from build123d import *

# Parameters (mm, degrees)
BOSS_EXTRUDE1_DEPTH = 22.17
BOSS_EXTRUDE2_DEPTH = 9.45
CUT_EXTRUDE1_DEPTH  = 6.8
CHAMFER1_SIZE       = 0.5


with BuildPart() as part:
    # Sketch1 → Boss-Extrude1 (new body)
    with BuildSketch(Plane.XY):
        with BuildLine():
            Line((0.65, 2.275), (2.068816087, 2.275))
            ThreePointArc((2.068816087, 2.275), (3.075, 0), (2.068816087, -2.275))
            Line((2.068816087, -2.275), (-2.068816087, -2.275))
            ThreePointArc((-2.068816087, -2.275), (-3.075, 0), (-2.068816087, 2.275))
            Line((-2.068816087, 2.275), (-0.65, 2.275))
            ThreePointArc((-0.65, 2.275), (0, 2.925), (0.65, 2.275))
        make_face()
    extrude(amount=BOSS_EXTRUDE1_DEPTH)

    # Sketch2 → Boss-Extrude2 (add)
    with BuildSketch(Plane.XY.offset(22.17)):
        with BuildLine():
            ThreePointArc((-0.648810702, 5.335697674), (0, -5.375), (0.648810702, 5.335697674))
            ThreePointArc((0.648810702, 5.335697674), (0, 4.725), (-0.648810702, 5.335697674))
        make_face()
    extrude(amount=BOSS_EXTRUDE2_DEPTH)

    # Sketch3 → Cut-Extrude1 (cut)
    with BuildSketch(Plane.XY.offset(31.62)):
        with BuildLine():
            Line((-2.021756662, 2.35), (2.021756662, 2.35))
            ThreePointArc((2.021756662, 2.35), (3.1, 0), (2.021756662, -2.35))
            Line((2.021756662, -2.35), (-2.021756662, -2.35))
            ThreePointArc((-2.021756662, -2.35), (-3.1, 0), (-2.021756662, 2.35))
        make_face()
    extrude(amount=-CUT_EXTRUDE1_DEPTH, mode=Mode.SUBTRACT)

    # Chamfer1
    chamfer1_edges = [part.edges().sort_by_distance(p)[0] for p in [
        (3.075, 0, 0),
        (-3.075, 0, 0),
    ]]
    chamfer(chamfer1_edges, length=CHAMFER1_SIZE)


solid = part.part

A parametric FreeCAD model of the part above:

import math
import FreeCAD as App
import Part
import Sketcher
from FreeCAD import Vector


def edges_at(feature, points):
    """Names of the edges that pass closest to the given points."""
    edges = feature.Shape.Edges
    near = lambda p: min(range(len(edges)), key=lambda i: edges[i].distToShape(Part.Vertex(*p))[0])
    return sorted({f"Edge{near(p) + 1}" for p in points})

doc = App.newDocument("Part")
params = doc.addObject("Spreadsheet::Sheet", "Params")
for row, (alias, value) in enumerate([
    ("sketch1_radius", "0.65 mm"),
    ("pad1_length", "22.17 mm"),
    ("sketch2_radius", "0.65 mm"),
    ("pad2_length", "9.45 mm"),
    ("sketch3_radius", "3.1 mm"),
    ("pocket1_length", "6.8 mm"),
    ("chamfer_size", "0.5 mm"),
], start=1):
    params.set(f"A{row}", alias)
    params.set(f"B{row}", "=" + value)
    params.setAlias(f"B{row}", alias)

body = doc.addObject("PartDesign::Body", "Body")

sketch1 = body.newObject("Sketcher::SketchObject", "Sketch")
sketch1.AttachmentSupport = (doc.getObject("XY_Plane"), [""])
sketch1.MapMode = "FlatFace"
sketch1.addGeometry([
    Part.LineSegment(Vector(2.1, 2.3, 0), Vector(0.7, 2.3, 0)),
    Part.ArcOfCircle(Part.Circle(Vector(0, 2.3, 0), Vector(0, 0, 1), 0.7), math.radians(0), math.radians(180)),
    Part.LineSegment(Vector(-0.7, 2.3, 0), Vector(-2.1, 2.3, 0)),
    Part.ArcOfCircle(Part.Circle(Vector(0, 0, 0), Vector(0, 0, 1), 3.1), math.radians(132), math.radians(228)),
    Part.LineSegment(Vector(-2.1, -2.3, 0), Vector(2.1, -2.3, 0)),
    Part.ArcOfCircle(Part.Circle(Vector(0, 0, 0), Vector(0, 0, 1), 3.1), math.radians(-48), math.radians(48)),
], False)
sketch1.addConstraint([
    Sketcher.Constraint("Coincident", 0, 2, 1, 1),
    Sketcher.Constraint("Coincident", 1, 2, 2, 1),
    Sketcher.Constraint("Coincident", 2, 2, 3, 1),
    Sketcher.Constraint("Coincident", 3, 2, 4, 1),
    Sketcher.Constraint("Coincident", 4, 2, 5, 1),
    Sketcher.Constraint("Coincident", 5, 2, 0, 1),
    Sketcher.Constraint("Horizontal", 0),
    Sketcher.Constraint("Horizontal", 2),
    Sketcher.Constraint("Horizontal", 4),
    Sketcher.Constraint("Coincident", 3, 3, -1, 1),
    Sketcher.Constraint("Coincident", 5, 3, -1, 1),
    Sketcher.Constraint("Equal", 3, 5),
    Sketcher.Constraint("Symmetric", 0, 2, 1, 2, -2),
    Sketcher.Constraint("Horizontal", 1, 3, 0, 2),
    Sketcher.Constraint("Vertical", 2, 2, 3, 2),
    Sketcher.Constraint("Radius", 1, 0.65),
    Sketcher.Constraint("Radius", 3, 3.075),
    Sketcher.Constraint("DistanceY", 3, 2, 2, 2, 4.55),
])
sketch1.setExpression("Constraints[15]", "Params.sketch1_radius")
pad1 = body.newObject("PartDesign::Pad", "Pad")
pad1.Profile = sketch1
pad1.setExpression("Length", "Params.pad1_length")

sketch2 = body.newObject("Sketcher::SketchObject", "Sketch001")
sketch2.AttachmentSupport = (doc.getObject("XY_Plane"), [""])
sketch2.MapMode = "FlatFace"
sketch2.AttachmentOffset = App.Placement(Vector(0, 0, 22.17), App.Rotation())
sketch2.addGeometry([
    Part.ArcOfCircle(Part.Circle(Vector(0, 0, 0), Vector(0, 0, 1), 5.4), math.radians(97), math.radians(443)),
    Part.ArcOfCircle(Part.Circle(Vector(0, 5.4, 0), Vector(0, 0, 1), 0.7), math.radians(-177), math.radians(-3)),
], False)
sketch2.addConstraint([
    Sketcher.Constraint("Coincident", 0, 1, 1, 1),
    Sketcher.Constraint("Coincident", 1, 2, 0, 2),
    Sketcher.Constraint("Coincident", 0, 3, -1, 1),
    Sketcher.Constraint("PointOnObject", 1, 3, -2),
    Sketcher.Constraint("Radius", 1, 0.65),
    Sketcher.Constraint("Radius", 0, 5.375),
    Sketcher.Constraint("DistanceY", -1, 1, 1, 3, 5.375),
])
sketch2.setExpression("Constraints[4]", "Params.sketch2_radius")
pad2 = body.newObject("PartDesign::Pad", "Pad001")
pad2.Profile = sketch2
pad2.setExpression("Length", "Params.pad2_length")

sketch3 = body.newObject("Sketcher::SketchObject", "Sketch002")
sketch3.AttachmentSupport = (doc.getObject("XY_Plane"), [""])
sketch3.MapMode = "FlatFace"
sketch3.AttachmentOffset = App.Placement(Vector(0, 0, 31.62), App.Rotation())
sketch3.addGeometry([
    Part.LineSegment(Vector(2, 2.4, 0), Vector(-2, 2.4, 0)),
    Part.ArcOfCircle(Part.Circle(Vector(0, 0, 0), Vector(0, 0, 1), 3.1), math.radians(131), math.radians(229)),
    Part.LineSegment(Vector(-2, -2.4, 0), Vector(2, -2.4, 0)),
    Part.ArcOfCircle(Part.Circle(Vector(0, 0, 0), Vector(0, 0, 1), 3.1), math.radians(-49), math.radians(49)),
], False)
sketch3.addConstraint([
    Sketcher.Constraint("Coincident", 0, 2, 1, 1),
    Sketcher.Constraint("Coincident", 1, 2, 2, 1),
    Sketcher.Constraint("Coincident", 2, 2, 3, 1),
    Sketcher.Constraint("Coincident", 3, 2, 0, 1),
    Sketcher.Constraint("Horizontal", 0),
    Sketcher.Constraint("Horizontal", 2),
    Sketcher.Constraint("Coincident", 1, 3, -1, 1),
    Sketcher.Constraint("Coincident", 3, 3, -1, 1),
    Sketcher.Constraint("Equal", 1, 3),
    Sketcher.Constraint("Vertical", 0, 2, 1, 2),
    Sketcher.Constraint("Radius", 1, 3.1),
    Sketcher.Constraint("DistanceY", 1, 2, 0, 2, 4.7),
])
sketch3.setExpression("Constraints[10]", "Params.sketch3_radius")
pocket1 = body.newObject("PartDesign::Pocket", "Pocket")
pocket1.Profile = sketch3
pocket1.setExpression("Length", "Params.pocket1_length")
doc.recompute()

chamfer = body.newObject("PartDesign::Chamfer", "Chamfer")
chamfer.Base = (pocket1, edges_at(pocket1, [(3.075, 0, 0), (-3.075, 0, 0)]))
chamfer.setExpression("Size", "Params.chamfer_size")

doc.recompute()
